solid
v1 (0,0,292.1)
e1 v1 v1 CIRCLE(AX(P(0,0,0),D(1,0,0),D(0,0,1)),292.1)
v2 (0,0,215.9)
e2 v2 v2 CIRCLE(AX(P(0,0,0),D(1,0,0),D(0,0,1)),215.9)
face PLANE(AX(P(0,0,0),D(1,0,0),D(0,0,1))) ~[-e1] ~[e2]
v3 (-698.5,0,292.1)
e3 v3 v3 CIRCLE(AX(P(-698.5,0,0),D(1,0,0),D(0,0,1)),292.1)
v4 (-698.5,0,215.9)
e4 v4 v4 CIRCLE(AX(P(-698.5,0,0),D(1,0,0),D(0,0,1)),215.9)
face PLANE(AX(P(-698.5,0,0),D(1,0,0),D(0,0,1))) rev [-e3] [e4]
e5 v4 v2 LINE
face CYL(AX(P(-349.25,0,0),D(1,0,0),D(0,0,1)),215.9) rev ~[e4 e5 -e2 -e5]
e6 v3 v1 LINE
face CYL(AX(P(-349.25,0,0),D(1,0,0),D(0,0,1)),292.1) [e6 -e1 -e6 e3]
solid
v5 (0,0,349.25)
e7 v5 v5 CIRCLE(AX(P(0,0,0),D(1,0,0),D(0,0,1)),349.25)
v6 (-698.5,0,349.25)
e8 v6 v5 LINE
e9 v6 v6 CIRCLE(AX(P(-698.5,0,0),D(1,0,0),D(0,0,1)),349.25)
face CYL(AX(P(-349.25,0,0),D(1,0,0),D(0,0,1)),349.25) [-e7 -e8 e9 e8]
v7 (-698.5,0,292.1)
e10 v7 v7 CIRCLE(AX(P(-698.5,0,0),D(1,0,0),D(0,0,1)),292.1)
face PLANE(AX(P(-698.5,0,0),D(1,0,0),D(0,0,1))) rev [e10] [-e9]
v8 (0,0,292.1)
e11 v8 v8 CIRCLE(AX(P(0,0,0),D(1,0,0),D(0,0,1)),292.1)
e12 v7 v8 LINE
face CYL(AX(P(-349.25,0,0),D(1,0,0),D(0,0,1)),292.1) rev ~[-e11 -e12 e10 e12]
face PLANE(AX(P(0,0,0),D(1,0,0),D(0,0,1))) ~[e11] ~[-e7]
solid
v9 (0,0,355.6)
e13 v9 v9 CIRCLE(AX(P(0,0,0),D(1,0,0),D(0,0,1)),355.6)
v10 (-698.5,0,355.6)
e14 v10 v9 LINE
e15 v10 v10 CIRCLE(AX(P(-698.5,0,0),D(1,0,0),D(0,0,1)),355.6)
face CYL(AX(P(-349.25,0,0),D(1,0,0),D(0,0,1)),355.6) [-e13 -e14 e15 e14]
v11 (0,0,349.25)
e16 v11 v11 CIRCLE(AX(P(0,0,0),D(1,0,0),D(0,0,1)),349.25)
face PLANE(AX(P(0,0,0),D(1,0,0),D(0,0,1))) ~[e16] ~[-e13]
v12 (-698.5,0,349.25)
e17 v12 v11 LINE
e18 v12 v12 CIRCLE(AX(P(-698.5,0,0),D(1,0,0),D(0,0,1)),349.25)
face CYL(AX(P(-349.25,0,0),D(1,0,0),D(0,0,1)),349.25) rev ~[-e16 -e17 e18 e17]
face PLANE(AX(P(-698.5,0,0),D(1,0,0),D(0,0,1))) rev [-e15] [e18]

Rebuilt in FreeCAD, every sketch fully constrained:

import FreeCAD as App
import Part
import Sketcher
Q = App.Units.Quantity

doc = App.newDocument("Part")
params = doc.addObject("Spreadsheet::Sheet", "Params")
for row, (alias, value) in enumerate([
    ("sketch1_width", "27.5 in"),
    ("sketch1_height", "0.25 in"),
    ("revolution_angle", "360 deg"),
    ("sketch2_width", "27.5 in"),
    ("sketch2_height", "2.25 in"),
    ("revolution2_angle", "360 deg"),
    ("sketch3_height", "3 in"),
    ("sketch3_width", "27.5 in"),
    ("revolution3_angle", "360 deg"),
], start=1):
    params.set(f"A{row}", alias)
    params.set(f"B{row}", "=" + value)
    params.setAlias(f"B{row}", alias)

body = doc.addObject("PartDesign::Body", "Body")

sketch1 = body.newObject("Sketcher::SketchObject", "Sketch")
sketch1.AttachmentSupport = (doc.getObject("XZ_Plane"), [""])
sketch1.MapMode = "FlatFace"
sketch1.addGeometry(Part.LineSegment(App.Vector(-698, 356, 0), App.Vector(-698, 349, 0)), False)
sketch1.addGeometry(Part.LineSegment(App.Vector(-698, 349, 0), App.Vector(0, 349, 0)), False)
sketch1.addGeometry(Part.LineSegment(App.Vector(0, 349, 0), App.Vector(0, 356, 0)), False)
sketch1.addGeometry(Part.LineSegment(App.Vector(0, 356, 0), App.Vector(-698, 356, 0)), False)
sketch1.addConstraint(Sketcher.Constraint("Coincident", 0, 2, 1, 1))
sketch1.addConstraint(Sketcher.Constraint("Coincident", 1, 2, 2, 1))
sketch1.addConstraint(Sketcher.Constraint("Coincident", 2, 2, 3, 1))
sketch1.addConstraint(Sketcher.Constraint("Coincident", 3, 2, 0, 1))
sketch1.addConstraint(Sketcher.Constraint("Vertical", 0))
sketch1.addConstraint(Sketcher.Constraint("Horizontal", 1))
sketch1.addConstraint(Sketcher.Constraint("Vertical", 2))
sketch1.addConstraint(Sketcher.Constraint("Horizontal", 3))
sketch1.addConstraint(Sketcher.Constraint("PointOnObject", 1, 2, -2))
sketch1.addConstraint(Sketcher.Constraint("DistanceX", 1, 1, 1, 2, Q("27.5 in")))
sketch1.addConstraint(Sketcher.Constraint("DistanceY", -1, 1, 2, 2, Q("14 in")))
sketch1.addConstraint(Sketcher.Constraint("DistanceY", 0, 2, 0, 1, Q("0.25 in")))
sketch1.setExpression("Constraints[9]", "Params.sketch1_width")
sketch1.setExpression("Constraints[11]", "Params.sketch1_height")
revolution = body.newObject("PartDesign::Revolution", "Revolution")
revolution.Profile = sketch1
revolution.ReferenceAxis = (sketch1, ["H_Axis"])
revolution.setExpression("Angle", "Params.revolution_angle")
body2 = doc.addObject("PartDesign::Body", "Body001")

sketch2 = body2.newObject("Sketcher::SketchObject", "Sketch001")
sketch2.AttachmentSupport = (doc.getObject("XZ_Plane001"), [""])
sketch2.MapMode = "FlatFace"
sketch2.addGeometry(Part.LineSegment(App.Vector(-698, 349, 0), App.Vector(-698, 292, 0)), False)
sketch2.addGeometry(Part.LineSegment(App.Vector(-698, 292, 0), App.Vector(0, 292, 0)), False)
sketch2.addGeometry(Part.LineSegment(App.Vector(0, 292, 0), App.Vector(0, 349, 0)), False)
sketch2.addGeometry(Part.LineSegment(App.Vector(0, 349, 0), App.Vector(-698, 349, 0)), False)
sketch2.addConstraint(Sketcher.Constraint("Coincident", 0, 2, 1, 1))
sketch2.addConstraint(Sketcher.Constraint("Coincident", 1, 2, 2, 1))
sketch2.addConstraint(Sketcher.Constraint("Coincident", 2, 2, 3, 1))
sketch2.addConstraint(Sketcher.Constraint("Coincident", 3, 2, 0, 1))
sketch2.addConstraint(Sketcher.Constraint("Vertical", 0))
sketch2.addConstraint(Sketcher.Constraint("Horizontal", 1))
sketch2.addConstraint(Sketcher.Constraint("Vertical", 2))
sketch2.addConstraint(Sketcher.Constraint("Horizontal", 3))
sketch2.addConstraint(Sketcher.Constraint("PointOnObject", 1, 2, -2))
sketch2.addConstraint(Sketcher.Constraint("DistanceX", 1, 1, 1, 2, Q("27.5 in")))
sketch2.addConstraint(Sketcher.Constraint("DistanceY", 0, 2, 0, 1, Q("2.25 in")))
sketch2.addConstraint(Sketcher.Constraint("DistanceY", -1, 1, 0, 2, Q("11.5 in")))
sketch2.setExpression("Constraints[9]", "Params.sketch2_width")
sketch2.setExpression("Constraints[10]", "Params.sketch2_height")
revolution2 = body2.newObject("PartDesign::Revolution", "Revolution001")
revolution2.Profile = sketch2
revolution2.ReferenceAxis = (sketch2, ["H_Axis"])
revolution2.setExpression("Angle", "Params.revolution2_angle")
body3 = doc.addObject("PartDesign::Body", "Body002")

sketch3 = body3.newObject("Sketcher::SketchObject", "Sketch002")
sketch3.AttachmentSupport = (doc.getObject("XZ_Plane002"), [""])
sketch3.MapMode = "FlatFace"
sketch3.addGeometry(Part.LineSegment(App.Vector(-698, 292, 0), App.Vector(-698, 216, 0)), False)
sketch3.addGeometry(Part.LineSegment(App.Vector(-698, 216, 0), App.Vector(0, 216, 0)), False)
sketch3.addGeometry(Part.LineSegment(App.Vector(0, 216, 0), App.Vector(0, 292, 0)), False)
sketch3.addGeometry(Part.LineSegment(App.Vector(0, 292, 0), App.Vector(-698, 292, 0)), False)
sketch3.addConstraint(Sketcher.Constraint("Coincident", 0, 2, 1, 1))
sketch3.addConstraint(Sketcher.Constraint("Coincident", 1, 2, 2, 1))
sketch3.addConstraint(Sketcher.Constraint("Coincident", 2, 2, 3, 1))
sketch3.addConstraint(Sketcher.Constraint("Coincident", 3, 2, 0, 1))
sketch3.addConstraint(Sketcher.Constraint("Vertical", 0))
sketch3.addConstraint(Sketcher.Constraint("Horizontal", 1))
sketch3.addConstraint(Sketcher.Constraint("Vertical", 2))
sketch3.addConstraint(Sketcher.Constraint("Horizontal", 3))
sketch3.addConstraint(Sketcher.Constraint("PointOnObject", 1, 2, -2))
sketch3.addConstraint(Sketcher.Constraint("DistanceY", 0, 2, 0, 1, Q("3 in")))
sketch3.addConstraint(Sketcher.Constraint("DistanceX", 1, 1, 1, 2, Q("27.5 in")))
sketch3.addConstraint(Sketcher.Constraint("DistanceY", -1, 1, 0, 2, Q("8.5 in")))
sketch3.setExpression("Constraints[9]", "Params.sketch3_height")
sketch3.setExpression("Constraints[10]", "Params.sketch3_width")
revolution3 = body3.newObject("PartDesign::Revolution", "Revolution002")
revolution3.Profile = sketch3
revolution3.ReferenceAxis = (sketch3, ["H_Axis"])
revolution3.setExpression("Angle", "Params.revolution3_angle")

doc.recompute()
